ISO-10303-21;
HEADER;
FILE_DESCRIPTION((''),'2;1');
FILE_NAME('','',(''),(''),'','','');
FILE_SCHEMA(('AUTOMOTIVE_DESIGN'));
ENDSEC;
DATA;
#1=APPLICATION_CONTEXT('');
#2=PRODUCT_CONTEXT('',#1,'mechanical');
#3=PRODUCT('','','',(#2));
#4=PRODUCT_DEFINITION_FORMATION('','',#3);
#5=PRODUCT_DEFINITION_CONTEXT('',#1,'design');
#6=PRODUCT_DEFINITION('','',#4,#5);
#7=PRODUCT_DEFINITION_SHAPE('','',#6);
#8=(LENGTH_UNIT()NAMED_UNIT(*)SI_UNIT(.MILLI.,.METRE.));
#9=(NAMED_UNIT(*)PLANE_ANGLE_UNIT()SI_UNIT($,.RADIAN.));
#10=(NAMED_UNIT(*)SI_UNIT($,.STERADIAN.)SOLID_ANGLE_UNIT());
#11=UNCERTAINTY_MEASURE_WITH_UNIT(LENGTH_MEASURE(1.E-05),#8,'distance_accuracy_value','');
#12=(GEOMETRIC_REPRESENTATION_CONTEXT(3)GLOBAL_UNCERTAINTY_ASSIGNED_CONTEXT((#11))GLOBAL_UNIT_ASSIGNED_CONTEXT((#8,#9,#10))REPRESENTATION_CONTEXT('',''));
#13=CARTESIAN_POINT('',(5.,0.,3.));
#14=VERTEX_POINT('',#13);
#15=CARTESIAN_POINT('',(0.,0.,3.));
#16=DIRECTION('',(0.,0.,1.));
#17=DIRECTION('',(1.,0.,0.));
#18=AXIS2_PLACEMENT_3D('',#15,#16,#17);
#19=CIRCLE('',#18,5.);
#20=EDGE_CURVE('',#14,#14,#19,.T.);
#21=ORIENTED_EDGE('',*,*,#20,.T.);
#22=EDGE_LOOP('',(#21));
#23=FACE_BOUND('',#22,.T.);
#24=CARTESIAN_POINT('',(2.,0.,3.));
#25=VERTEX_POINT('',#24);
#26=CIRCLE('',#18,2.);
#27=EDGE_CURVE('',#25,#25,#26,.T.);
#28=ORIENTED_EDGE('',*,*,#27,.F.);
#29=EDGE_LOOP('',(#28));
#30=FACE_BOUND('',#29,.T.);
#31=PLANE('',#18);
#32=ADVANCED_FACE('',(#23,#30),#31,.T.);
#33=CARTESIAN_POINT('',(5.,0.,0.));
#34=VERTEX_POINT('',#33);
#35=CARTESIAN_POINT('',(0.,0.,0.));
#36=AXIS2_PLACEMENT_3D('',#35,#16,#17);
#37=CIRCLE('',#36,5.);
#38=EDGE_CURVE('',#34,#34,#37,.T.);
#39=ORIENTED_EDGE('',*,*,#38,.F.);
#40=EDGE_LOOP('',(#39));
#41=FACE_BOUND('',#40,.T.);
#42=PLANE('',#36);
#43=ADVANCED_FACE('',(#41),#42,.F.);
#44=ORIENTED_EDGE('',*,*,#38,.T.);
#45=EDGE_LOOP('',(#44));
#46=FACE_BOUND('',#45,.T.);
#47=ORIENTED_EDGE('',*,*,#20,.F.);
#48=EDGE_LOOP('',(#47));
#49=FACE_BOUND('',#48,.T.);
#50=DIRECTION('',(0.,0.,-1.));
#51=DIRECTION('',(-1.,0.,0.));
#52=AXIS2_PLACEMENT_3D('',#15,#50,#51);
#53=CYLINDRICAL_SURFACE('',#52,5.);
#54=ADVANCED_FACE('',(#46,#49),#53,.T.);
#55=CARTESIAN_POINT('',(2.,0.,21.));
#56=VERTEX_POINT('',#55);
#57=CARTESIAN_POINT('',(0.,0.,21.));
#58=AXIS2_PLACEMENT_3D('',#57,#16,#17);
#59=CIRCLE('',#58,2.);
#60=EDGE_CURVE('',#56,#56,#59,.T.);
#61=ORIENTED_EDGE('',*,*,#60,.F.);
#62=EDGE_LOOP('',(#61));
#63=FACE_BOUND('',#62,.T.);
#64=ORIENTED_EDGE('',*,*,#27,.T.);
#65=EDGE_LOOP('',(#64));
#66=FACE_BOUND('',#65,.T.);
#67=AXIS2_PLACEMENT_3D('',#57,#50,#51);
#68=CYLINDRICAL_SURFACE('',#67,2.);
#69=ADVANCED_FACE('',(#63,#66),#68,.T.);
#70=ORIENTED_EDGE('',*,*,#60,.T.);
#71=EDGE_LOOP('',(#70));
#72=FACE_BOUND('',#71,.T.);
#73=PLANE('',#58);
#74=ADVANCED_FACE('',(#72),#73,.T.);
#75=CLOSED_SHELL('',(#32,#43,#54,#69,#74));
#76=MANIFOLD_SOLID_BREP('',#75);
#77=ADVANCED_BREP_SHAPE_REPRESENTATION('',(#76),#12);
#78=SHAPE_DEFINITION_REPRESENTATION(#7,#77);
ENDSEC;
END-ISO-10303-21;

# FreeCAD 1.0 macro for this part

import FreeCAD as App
import Part
import Sketcher
from FreeCAD import Vector

doc = App.newDocument("Part")
body = doc.addObject("PartDesign::Body", "Body")

sketch1 = body.newObject("Sketcher::SketchObject", "Sketch")
sketch1.AttachmentSupport = (doc.getObject("XY_Plane"), [""])
sketch1.MapMode = "FlatFace"
sketch1.addGeometry(Part.Circle(Vector(0, 0, 0), Vector(0, 0, 1), 5), False)
sketch1.addConstraint([
    Sketcher.Constraint("Coincident", 0, 3, -1, 1),
    Sketcher.Constraint("Diameter", 0, 10.0),
])
pad1 = body.newObject("PartDesign::Pad", "Pad")
pad1.Profile = sketch1
pad1.Length = 3

sketch2 = body.newObject("Sketcher::SketchObject", "Sketch001")
sketch2.AttachmentSupport = (doc.getObject("XY_Plane"), [""])
sketch2.MapMode = "FlatFace"
sketch2.AttachmentOffset = App.Placement(Vector(0, 0, 3), App.Rotation())
sketch2.addGeometry(Part.Circle(Vector(0, 0, 0), Vector(0, 0, 1), 2), False)
sketch2.addConstraint([
    Sketcher.Constraint("Coincident", 0, 3, -1, 1),
    Sketcher.Constraint("Diameter", 0, 4.0),
])
pad2 = body.newObject("PartDesign::Pad", "Pad001")
pad2.Profile = sketch2
pad2.Length = 18

doc.recompute()
